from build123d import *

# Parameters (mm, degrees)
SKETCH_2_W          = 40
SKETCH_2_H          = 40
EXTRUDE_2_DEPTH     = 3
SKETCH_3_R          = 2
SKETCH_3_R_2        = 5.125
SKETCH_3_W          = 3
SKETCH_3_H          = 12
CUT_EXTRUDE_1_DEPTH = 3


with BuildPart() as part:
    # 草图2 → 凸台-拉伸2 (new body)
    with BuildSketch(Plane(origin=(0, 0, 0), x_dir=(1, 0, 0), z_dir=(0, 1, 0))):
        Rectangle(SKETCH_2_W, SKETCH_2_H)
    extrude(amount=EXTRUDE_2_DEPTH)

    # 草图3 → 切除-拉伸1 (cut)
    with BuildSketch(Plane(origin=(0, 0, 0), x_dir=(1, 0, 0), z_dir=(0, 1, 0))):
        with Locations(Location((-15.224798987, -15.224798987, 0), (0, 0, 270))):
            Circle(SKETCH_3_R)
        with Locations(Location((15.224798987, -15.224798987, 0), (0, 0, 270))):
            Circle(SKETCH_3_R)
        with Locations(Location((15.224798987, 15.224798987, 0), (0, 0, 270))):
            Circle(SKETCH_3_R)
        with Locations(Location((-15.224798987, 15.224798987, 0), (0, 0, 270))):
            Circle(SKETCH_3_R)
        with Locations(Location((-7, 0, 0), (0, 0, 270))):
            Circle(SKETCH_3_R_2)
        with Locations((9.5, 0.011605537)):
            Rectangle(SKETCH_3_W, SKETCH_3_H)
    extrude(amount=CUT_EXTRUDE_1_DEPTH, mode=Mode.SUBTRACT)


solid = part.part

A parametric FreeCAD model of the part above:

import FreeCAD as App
import Part
import Sketcher
Q = App.Units.Quantity

doc = App.newDocument("Part")
body = doc.addObject("PartDesign::Body", "Body")

sketch1 = body.newObject("Sketcher::SketchObject", "Sketch")
sketch1.AttachmentSupport = (doc.getObject("XZ_Plane"), [""])
sketch1.MapMode = "FlatFace"
sketch1.addGeometry(Part.LineSegment(App.Vector(-20, -20, 0), App.Vector(-20, 20, 0)), False)
sketch1.addGeometry(Part.LineSegment(App.Vector(-20, 20, 0), App.Vector(20, 20, 0)), False)
sketch1.addGeometry(Part.LineSegment(App.Vector(20, 20, 0), App.Vector(20, -20, 0)), False)
sketch1.addGeometry(Part.LineSegment(App.Vector(20, -20, 0), App.Vector(-20, -20, 0)), False)
sketch1.addConstraint(Sketcher.Constraint("Coincident", 0, 2, 1, 1))
sketch1.addConstraint(Sketcher.Constraint("Coincident", 1, 2, 2, 1))
sketch1.addConstraint(Sketcher.Constraint("Coincident", 2, 2, 3, 1))
sketch1.addConstraint(Sketcher.Constraint("Coincident", 3, 2, 0, 1))
sketch1.addConstraint(Sketcher.Constraint("Vertical", 0))
sketch1.addConstraint(Sketcher.Constraint("Horizontal", 1))
sketch1.addConstraint(Sketcher.Constraint("Vertical", 2))
sketch1.addConstraint(Sketcher.Constraint("Horizontal", 3))
sketch1.addConstraint(Sketcher.Constraint("Symmetric", 0, 2, 2, 2, -1, 1))
sketch1.addConstraint(Sketcher.Constraint("Equal", 3, 0))
sketch1.addConstraint(Sketcher.Constraint("DistanceX", 1, 1, 1, 2, Q("40 mm")))
pad1 = body.newObject("PartDesign::Pad", "Pad")
pad1.Profile = sketch1
pad1.Length = 3
pad1.Reversed = True

sketch2 = body.newObject("Sketcher::SketchObject", "Sketch001")
sketch2.AttachmentSupport = (doc.getObject("XZ_Plane"), [""])
sketch2.MapMode = "FlatFace"
sketch2.addGeometry(Part.Circle(App.Vector(-15.2, 15.2, 0), App.Vector(0, 0, 1), 2), False)
sketch2.addGeometry(Part.Circle(App.Vector(15.2, 15.2, 0), App.Vector(0, 0, 1), 2), False)
sketch2.addGeometry(Part.Circle(App.Vector(15.2, -15.2, 0), App.Vector(0, 0, 1), 2), False)
sketch2.addGeometry(Part.Circle(App.Vector(-15.2, -15.2, 0), App.Vector(0, 0, 1), 2), False)
sketch2.addGeometry(Part.Circle(App.Vector(-7, 0, 0), App.Vector(0, 0, 1), 5.1), False)
sketch2.addGeometry(Part.LineSegment(App.Vector(8, -6, 0), App.Vector(8, 6, 0)), False)
sketch2.addGeometry(Part.LineSegment(App.Vector(8, 6, 0), App.Vector(11, 6, 0)), False)
sketch2.addGeometry(Part.LineSegment(App.Vector(11, 6, 0), App.Vector(11, -6, 0)), False)
sketch2.addGeometry(Part.LineSegment(App.Vector(11, -6, 0), App.Vector(8, -6, 0)), False)
sketch2.addConstraint(Sketcher.Constraint("Coincident", 5, 2, 6, 1))
sketch2.addConstraint(Sketcher.Constraint("Coincident", 6, 2, 7, 1))
sketch2.addConstraint(Sketcher.Constraint("Coincident", 7, 2, 8, 1))
sketch2.addConstraint(Sketcher.Constraint("Coincident", 8, 2, 5, 1))
sketch2.addConstraint(Sketcher.Constraint("Vertical", 5))
sketch2.addConstraint(Sketcher.Constraint("Horizontal", 6))
sketch2.addConstraint(Sketcher.Constraint("Vertical", 7))
sketch2.addConstraint(Sketcher.Constraint("Horizontal", 8))
sketch2.addConstraint(Sketcher.Constraint("Equal", 0, 1))
sketch2.addConstraint(Sketcher.Constraint("Equal", 1, 2))
sketch2.addConstraint(Sketcher.Constraint("Equal", 2, 3))
sketch2.addConstraint(Sketcher.Constraint("Symmetric", 0, 3, 2, 3, -1, 1))
sketch2.addConstraint(Sketcher.Constraint("Symmetric", 1, 3, 3, 3, -1, 1))
sketch2.addConstraint(Sketcher.Constraint("Symmetric", 0, 3, 1, 3, -2))
sketch2.addConstraint(Sketcher.Constraint("PointOnObject", 4, 3, -1))
sketch2.addConstraint(Sketcher.Constraint("Diameter", 0, Q("4 mm")))
sketch2.addConstraint(Sketcher.Constraint("Diameter", 4, Q("10.25 mm")))
sketch2.addConstraint(Sketcher.Constraint("DistanceX", 6, 1, 6, 2, Q("3 mm")))
sketch2.addConstraint(Sketcher.Constraint("DistanceY", 5, 1, 5, 2, Q("12 mm")))
sketch2.addConstraint(Sketcher.Constraint("DistanceX", 4, 3, -1, 1, Q("7 mm")))
sketch2.addConstraint(Sketcher.Constraint("DistanceX", -1, 1, 5, 2, Q("8 mm")))
sketch2.addConstraint(Sketcher.Constraint("DistanceX", 0, 3, -1, 1, Q("15.224799 mm")))
sketch2.addConstraint(Sketcher.Constraint("DistanceY", -1, 1, 0, 3, Q("15.224799 mm")))
sketch2.addConstraint(Sketcher.Constraint("DistanceY", -1, 1, 5, 2, Q("5.988394 mm")))
pocket1 = body.newObject("PartDesign::Pocket", "Pocket")
pocket1.Profile = sketch2
pocket1.Length = 3

doc.recompute()
